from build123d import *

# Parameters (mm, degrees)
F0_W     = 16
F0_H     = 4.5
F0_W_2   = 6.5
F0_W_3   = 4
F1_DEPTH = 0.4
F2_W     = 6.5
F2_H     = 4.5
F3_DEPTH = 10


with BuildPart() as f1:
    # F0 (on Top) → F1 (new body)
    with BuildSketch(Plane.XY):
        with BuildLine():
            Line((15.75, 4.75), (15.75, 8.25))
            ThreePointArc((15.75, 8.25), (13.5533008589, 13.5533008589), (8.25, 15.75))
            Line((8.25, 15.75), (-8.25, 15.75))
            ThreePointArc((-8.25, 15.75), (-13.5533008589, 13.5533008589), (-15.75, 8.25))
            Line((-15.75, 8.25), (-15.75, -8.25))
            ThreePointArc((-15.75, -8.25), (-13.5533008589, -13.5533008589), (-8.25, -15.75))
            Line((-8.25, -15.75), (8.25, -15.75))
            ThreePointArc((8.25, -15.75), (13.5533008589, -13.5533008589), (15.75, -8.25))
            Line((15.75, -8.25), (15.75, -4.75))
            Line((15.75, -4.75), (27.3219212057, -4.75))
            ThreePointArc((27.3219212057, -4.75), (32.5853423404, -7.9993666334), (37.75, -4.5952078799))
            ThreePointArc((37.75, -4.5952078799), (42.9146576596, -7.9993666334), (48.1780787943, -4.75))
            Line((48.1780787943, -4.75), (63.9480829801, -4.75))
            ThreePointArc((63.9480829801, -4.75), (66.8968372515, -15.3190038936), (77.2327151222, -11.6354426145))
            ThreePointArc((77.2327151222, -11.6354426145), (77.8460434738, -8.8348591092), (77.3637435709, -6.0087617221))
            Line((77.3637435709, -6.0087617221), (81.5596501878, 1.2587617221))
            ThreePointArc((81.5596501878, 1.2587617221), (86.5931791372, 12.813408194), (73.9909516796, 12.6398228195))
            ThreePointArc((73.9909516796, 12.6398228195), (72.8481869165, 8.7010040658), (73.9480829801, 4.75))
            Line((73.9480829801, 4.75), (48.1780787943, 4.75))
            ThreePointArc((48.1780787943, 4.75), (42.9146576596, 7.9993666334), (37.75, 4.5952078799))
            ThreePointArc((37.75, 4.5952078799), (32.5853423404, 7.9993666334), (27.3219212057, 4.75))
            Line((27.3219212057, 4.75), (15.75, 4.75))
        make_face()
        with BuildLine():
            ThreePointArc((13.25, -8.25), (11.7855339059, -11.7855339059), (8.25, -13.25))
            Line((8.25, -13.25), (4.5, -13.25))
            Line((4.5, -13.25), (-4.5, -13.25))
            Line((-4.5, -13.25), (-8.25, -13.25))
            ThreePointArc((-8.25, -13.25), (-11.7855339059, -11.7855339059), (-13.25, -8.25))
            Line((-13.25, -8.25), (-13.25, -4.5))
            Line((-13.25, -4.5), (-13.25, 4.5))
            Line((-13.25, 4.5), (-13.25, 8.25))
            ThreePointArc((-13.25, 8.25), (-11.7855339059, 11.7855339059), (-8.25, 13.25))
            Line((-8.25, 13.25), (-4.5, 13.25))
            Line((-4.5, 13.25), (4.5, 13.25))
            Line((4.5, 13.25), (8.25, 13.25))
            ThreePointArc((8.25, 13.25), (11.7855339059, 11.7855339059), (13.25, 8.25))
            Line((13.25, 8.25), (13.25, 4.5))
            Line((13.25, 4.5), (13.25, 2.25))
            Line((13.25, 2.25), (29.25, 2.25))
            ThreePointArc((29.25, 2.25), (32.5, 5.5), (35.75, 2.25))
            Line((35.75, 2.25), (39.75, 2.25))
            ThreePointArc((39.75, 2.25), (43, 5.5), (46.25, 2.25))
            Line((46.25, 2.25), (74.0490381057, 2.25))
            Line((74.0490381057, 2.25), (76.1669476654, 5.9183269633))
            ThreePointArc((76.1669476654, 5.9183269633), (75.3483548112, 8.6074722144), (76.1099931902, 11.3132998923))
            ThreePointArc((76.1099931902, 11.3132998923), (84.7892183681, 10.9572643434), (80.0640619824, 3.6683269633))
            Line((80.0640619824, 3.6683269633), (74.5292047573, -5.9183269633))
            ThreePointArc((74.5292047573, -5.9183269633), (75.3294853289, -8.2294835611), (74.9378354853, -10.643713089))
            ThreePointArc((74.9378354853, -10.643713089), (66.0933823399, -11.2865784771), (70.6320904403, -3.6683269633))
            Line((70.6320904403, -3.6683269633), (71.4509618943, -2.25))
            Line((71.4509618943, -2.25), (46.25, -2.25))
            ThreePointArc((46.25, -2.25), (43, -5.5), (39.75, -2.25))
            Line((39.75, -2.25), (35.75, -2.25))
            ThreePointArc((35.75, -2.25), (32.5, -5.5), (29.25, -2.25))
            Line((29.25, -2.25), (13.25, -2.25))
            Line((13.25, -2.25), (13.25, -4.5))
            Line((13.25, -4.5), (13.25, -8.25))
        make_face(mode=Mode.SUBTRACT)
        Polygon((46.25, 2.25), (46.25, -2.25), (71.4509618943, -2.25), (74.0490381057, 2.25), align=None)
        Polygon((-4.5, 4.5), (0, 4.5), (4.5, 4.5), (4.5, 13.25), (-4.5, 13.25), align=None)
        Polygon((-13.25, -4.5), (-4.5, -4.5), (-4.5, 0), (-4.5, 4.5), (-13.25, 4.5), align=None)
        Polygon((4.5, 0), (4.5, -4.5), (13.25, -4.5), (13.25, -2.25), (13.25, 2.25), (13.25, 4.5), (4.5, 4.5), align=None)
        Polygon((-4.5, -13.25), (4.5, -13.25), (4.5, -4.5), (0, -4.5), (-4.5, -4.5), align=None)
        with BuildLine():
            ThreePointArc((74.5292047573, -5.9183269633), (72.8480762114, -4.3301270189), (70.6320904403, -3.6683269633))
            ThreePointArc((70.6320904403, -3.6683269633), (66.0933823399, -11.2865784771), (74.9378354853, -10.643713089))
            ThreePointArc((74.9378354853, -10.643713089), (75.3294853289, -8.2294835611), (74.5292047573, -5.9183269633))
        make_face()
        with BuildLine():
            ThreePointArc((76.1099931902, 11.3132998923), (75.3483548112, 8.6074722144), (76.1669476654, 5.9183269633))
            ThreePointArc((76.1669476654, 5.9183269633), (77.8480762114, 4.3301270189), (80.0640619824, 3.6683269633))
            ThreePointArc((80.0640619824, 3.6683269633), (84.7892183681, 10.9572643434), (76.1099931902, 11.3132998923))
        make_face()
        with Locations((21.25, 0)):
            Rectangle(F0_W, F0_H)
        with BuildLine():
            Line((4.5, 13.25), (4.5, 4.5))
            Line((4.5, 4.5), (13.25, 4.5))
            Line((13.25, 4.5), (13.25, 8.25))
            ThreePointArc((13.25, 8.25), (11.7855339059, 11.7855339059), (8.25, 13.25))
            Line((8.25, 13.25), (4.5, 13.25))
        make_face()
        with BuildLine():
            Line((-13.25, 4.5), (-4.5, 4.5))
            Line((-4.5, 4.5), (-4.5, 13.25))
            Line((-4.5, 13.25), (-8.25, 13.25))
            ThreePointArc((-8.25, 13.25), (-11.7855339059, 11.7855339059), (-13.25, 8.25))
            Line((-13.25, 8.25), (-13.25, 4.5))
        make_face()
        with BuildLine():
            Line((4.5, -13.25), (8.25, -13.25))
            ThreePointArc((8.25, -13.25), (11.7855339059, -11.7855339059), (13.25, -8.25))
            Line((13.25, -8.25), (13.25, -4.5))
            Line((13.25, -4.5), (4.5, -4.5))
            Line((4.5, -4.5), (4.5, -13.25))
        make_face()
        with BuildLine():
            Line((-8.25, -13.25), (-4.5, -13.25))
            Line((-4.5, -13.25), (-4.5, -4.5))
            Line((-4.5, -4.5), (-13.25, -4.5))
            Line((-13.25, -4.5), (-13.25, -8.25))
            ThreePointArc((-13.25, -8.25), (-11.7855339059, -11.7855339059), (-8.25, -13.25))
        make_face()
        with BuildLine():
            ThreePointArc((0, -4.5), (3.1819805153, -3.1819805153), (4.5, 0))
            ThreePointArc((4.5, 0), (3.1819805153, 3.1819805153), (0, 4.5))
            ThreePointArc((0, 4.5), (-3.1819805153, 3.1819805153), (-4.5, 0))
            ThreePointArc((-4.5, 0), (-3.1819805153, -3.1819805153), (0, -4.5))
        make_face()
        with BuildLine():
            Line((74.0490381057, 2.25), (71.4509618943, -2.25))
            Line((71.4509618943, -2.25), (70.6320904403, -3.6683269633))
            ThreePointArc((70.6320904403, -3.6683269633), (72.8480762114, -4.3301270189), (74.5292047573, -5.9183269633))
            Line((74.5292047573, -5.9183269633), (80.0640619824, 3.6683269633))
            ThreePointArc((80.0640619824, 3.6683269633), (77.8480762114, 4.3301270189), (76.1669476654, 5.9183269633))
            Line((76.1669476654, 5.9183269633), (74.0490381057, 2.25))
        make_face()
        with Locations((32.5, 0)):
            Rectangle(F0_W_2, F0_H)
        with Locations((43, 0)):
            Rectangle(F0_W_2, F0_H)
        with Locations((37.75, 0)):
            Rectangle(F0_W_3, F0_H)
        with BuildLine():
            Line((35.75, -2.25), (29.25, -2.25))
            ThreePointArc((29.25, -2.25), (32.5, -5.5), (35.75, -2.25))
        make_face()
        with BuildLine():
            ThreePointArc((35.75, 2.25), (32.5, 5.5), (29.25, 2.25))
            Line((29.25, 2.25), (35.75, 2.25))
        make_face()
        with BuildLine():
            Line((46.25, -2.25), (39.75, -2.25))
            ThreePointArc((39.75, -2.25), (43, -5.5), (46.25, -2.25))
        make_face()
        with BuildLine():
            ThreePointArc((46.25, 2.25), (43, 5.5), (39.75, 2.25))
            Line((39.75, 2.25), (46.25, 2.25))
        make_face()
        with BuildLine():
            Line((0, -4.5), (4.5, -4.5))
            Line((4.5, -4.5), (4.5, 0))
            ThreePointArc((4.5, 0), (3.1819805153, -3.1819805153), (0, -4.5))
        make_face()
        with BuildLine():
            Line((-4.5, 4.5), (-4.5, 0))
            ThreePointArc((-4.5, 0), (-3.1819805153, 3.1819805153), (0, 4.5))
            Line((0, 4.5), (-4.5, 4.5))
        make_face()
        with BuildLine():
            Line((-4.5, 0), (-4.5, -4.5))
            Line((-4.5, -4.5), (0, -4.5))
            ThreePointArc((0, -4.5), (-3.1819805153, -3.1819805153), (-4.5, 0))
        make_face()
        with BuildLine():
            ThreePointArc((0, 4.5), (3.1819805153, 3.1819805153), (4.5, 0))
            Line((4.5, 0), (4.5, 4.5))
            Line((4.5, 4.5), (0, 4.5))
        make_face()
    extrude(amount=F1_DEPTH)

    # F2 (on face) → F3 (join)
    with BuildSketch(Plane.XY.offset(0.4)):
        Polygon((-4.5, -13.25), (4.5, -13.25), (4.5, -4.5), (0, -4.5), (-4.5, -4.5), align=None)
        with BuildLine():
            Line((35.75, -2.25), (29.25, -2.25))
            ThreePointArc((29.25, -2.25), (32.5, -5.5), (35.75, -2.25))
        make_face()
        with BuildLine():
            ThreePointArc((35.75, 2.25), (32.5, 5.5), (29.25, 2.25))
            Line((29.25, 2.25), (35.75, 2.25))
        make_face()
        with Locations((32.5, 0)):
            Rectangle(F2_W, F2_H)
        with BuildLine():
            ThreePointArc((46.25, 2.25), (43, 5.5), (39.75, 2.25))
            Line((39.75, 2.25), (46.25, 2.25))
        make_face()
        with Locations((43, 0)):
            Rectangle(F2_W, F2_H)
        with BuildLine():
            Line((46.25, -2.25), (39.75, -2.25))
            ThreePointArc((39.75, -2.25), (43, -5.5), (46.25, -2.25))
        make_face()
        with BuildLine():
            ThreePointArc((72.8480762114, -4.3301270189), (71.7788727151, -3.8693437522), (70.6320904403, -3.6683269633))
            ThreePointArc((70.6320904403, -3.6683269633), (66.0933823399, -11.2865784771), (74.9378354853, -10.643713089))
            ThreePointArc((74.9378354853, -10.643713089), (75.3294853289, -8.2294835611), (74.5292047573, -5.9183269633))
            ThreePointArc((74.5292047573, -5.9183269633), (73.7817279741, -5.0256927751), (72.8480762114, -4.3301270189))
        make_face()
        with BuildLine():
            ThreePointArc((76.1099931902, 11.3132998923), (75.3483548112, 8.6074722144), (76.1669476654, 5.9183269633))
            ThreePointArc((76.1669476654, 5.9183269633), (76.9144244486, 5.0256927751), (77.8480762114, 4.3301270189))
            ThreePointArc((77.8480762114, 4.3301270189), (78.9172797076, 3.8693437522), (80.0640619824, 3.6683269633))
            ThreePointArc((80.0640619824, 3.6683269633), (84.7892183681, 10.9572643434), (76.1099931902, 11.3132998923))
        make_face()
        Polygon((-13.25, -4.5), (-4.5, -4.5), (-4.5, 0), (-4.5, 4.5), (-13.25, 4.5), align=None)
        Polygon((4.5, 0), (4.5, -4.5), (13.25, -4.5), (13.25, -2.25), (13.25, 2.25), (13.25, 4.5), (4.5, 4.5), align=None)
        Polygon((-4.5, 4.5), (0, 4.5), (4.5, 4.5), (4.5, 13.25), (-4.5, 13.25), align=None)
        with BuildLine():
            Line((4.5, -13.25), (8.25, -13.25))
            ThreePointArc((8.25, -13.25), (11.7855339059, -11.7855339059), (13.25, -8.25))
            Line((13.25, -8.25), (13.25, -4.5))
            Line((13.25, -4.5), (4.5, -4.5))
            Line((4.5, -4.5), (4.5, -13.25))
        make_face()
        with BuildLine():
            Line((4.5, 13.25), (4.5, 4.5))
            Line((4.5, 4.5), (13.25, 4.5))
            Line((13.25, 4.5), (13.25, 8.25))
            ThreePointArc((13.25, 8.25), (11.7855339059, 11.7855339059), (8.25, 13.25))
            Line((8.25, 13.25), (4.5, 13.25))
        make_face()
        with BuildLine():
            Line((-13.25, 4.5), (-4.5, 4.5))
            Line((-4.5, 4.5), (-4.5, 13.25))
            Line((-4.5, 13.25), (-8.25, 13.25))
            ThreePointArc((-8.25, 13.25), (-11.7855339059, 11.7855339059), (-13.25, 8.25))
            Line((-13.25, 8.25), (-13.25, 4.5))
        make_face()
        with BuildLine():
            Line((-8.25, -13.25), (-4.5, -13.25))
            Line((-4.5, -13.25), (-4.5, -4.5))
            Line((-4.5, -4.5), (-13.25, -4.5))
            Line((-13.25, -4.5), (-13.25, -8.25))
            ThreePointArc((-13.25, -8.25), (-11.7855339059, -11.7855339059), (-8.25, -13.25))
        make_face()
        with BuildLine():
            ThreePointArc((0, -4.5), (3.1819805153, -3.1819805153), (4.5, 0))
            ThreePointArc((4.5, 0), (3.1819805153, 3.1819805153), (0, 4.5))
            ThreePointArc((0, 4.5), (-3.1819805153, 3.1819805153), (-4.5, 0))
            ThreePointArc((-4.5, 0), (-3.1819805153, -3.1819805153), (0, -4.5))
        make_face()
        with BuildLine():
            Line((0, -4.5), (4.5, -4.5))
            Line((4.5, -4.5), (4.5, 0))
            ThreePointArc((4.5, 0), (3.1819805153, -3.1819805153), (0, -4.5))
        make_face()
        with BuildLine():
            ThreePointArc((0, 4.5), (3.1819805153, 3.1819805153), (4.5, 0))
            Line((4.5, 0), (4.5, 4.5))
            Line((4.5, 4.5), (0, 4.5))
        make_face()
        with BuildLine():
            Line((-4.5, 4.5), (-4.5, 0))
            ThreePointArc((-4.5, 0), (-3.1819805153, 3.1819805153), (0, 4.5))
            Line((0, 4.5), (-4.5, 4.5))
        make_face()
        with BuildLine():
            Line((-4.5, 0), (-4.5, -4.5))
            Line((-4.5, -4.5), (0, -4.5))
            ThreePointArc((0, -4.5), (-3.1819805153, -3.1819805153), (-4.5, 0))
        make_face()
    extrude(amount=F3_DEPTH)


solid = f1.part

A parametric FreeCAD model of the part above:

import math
import FreeCAD as App
import Part
import Sketcher
from FreeCAD import Vector
Q = App.Units.Quantity

doc = App.newDocument("Part")
body = doc.addObject("PartDesign::Body", "Body")

sketch1 = body.newObject("Sketcher::SketchObject", "Sketch")
sketch1.AttachmentSupport = (doc.getObject("XY_Plane"), [""])
sketch1.MapMode = "FlatFace"
sketch1.addGeometry([
    Part.LineSegment(Vector(15.8, 4.8, 0), Vector(15.8, 8.2, 0)),
    Part.ArcOfCircle(Part.Circle(Vector(8.2, 8.2, 0), Vector(0, 0, 1), 7.5), math.radians(0), math.radians(90)),
    Part.LineSegment(Vector(8.2, 15.8, 0), Vector(-8.2, 15.8, 0)),
    Part.ArcOfCircle(Part.Circle(Vector(-8.2, 8.2, 0), Vector(0, 0, 1), 7.5), math.radians(90), math.radians(180)),
    Part.LineSegment(Vector(-15.8, 8.2, 0), Vector(-15.8, -8.2, 0)),
    Part.ArcOfCircle(Part.Circle(Vector(-8.2, -8.2, 0), Vector(0, 0, 1), 7.5), math.radians(180), math.radians(270)),
    Part.LineSegment(Vector(-8.2, -15.8, 0), Vector(8.2, -15.8, 0)),
    Part.ArcOfCircle(Part.Circle(Vector(8.2, -8.2, 0), Vector(0, 0, 1), 7.5), math.radians(-90), math.radians(0)),
    Part.LineSegment(Vector(15.8, -8.2, 0), Vector(15.8, -4.8, 0)),
    Part.LineSegment(Vector(15.8, -4.8, 0), Vector(27.3, -4.8, 0)),
    Part.ArcOfCircle(Part.Circle(Vector(32.5, -2.2, 0), Vector(0, 0, 1), 5.8), math.radians(-154), math.radians(-24)),
    Part.ArcOfCircle(Part.Circle(Vector(43, -2.2, 0), Vector(0, 0, 1), 5.8), math.radians(-156), math.radians(-26)),
    Part.LineSegment(Vector(48.2, -4.8, 0), Vector(63.9, -4.8, 0)),
    Part.ArcOfCircle(Part.Circle(Vector(70.3, -8.7, 0), Vector(0, 0, 1), 7.5), math.radians(149), math.radians(337)),
    Part.ArcOfCircle(Part.Circle(Vector(70.3, -8.7, 0), Vector(0, 0, 1), 7.5), math.radians(-23), math.radians(21)),
    Part.LineSegment(Vector(77.4, -6, 0), Vector(81.6, 1.3, 0)),
    Part.ArcOfCircle(Part.Circle(Vector(80.3, 8.7, 0), Vector(0, 0, 1), 7.5), math.radians(-81), math.radians(148)),
    Part.ArcOfCircle(Part.Circle(Vector(80.3, 8.7, 0), Vector(0, 0, 1), 7.5), math.radians(148), math.radians(211)),
    Part.LineSegment(Vector(73.9, 4.8, 0), Vector(48.2, 4.8, 0)),
    Part.ArcOfCircle(Part.Circle(Vector(43, 2.2, 0), Vector(0, 0, 1), 5.8), math.radians(26), math.radians(156)),
    Part.ArcOfCircle(Part.Circle(Vector(32.5, 2.2, 0), Vector(0, 0, 1), 5.8), math.radians(24), math.radians(154)),
    Part.LineSegment(Vector(27.3, 4.8, 0), Vector(15.8, 4.8, 0)),
], False)
sketch1.addConstraint([
    Sketcher.Constraint("Tangent", 0, 2, 1, 1),
    Sketcher.Constraint("Tangent", 1, 2, 2, 1),
    Sketcher.Constraint("Tangent", 2, 2, 3, 1),
    Sketcher.Constraint("Tangent", 3, 2, 4, 1),
    Sketcher.Constraint("Tangent", 4, 2, 5, 1),
    Sketcher.Constraint("Tangent", 5, 2, 6, 1),
    Sketcher.Constraint("Tangent", 6, 2, 7, 1),
    Sketcher.Constraint("Tangent", 7, 2, 8, 1),
    Sketcher.Constraint("Coincident", 8, 2, 9, 1),
    Sketcher.Constraint("Coincident", 9, 2, 10, 1),
    Sketcher.Constraint("Coincident", 10, 2, 11, 1),
    Sketcher.Constraint("Coincident", 11, 2, 12, 1),
    Sketcher.Constraint("Coincident", 12, 2, 13, 1),
    Sketcher.Constraint("Tangent", 13, 2, 14, 1),
    Sketcher.Constraint("Coincident", 14, 2, 15, 1),
    Sketcher.Constraint("Coincident", 15, 2, 16, 1),
    Sketcher.Constraint("Tangent", 16, 2, 17, 1),
    Sketcher.Constraint("Coincident", 17, 2, 18, 1),
    Sketcher.Constraint("Coincident", 18, 2, 19, 1),
    Sketcher.Constraint("Coincident", 19, 2, 20, 1),
    Sketcher.Constraint("Coincident", 20, 2, 21, 1),
    Sketcher.Constraint("Coincident", 21, 2, 0, 1),
    Sketcher.Constraint("Vertical", 0),
    Sketcher.Constraint("Horizontal", 2),
    Sketcher.Constraint("Vertical", 4),
    Sketcher.Constraint("Horizontal", 6),
    Sketcher.Constraint("Vertical", 8),
    Sketcher.Constraint("Horizontal", 9),
    Sketcher.Constraint("Horizontal", 12),
    Sketcher.Constraint("Horizontal", 18),
    Sketcher.Constraint("Horizontal", 21),
    Sketcher.Constraint("Equal", 1, 3),
    Sketcher.Constraint("Equal", 3, 5),
    Sketcher.Constraint("Equal", 5, 7),
    Sketcher.Constraint("Equal", 10, 11),
    Sketcher.Constraint("Equal", 7, 13),
    Sketcher.Constraint("Equal", 13, 14),
    Sketcher.Constraint("Equal", 14, 16),
    Sketcher.Constraint("Equal", 16, 17),
    Sketcher.Constraint("Equal", 11, 19),
    Sketcher.Constraint("Equal", 19, 20),
    Sketcher.Constraint("Symmetric", 1, 3, 5, 3, -1, 1),
    Sketcher.Constraint("Symmetric", 11, 3, 19, 3, -1),
    Sketcher.Constraint("Symmetric", 10, 3, 20, 3, -1),
    Sketcher.Constraint("Symmetric", 8, 2, 21, 2, -1),
    Sketcher.Constraint("Horizontal", 10, 3, 11, 3),
    Sketcher.Constraint("Horizontal", 9, 2, 11, 2),
    Sketcher.Constraint("Horizontal", 18, 2, 20, 2),
    Sketcher.Constraint("Equal", 6, 4),
    Sketcher.Constraint("Radius", 1, 7.5),
    Sketcher.Constraint("Angle", 15, Q("60 deg")),
    Sketcher.Constraint("Radius", 10, 5.75),
    Sketcher.Constraint("DistanceX", 2, 2, 2, 1, 16.5),
    Sketcher.Constraint("DistanceY", 0, 1, 0, 2, 3.5),
    Sketcher.Constraint("DistanceX", -1, 1, 11, 3, 43.0),
    Sketcher.Constraint("DistanceY", 7, 3, 10, 3, 6.0),
    Sketcher.Constraint("DistanceX", 13, 3, 16, 3, 10.0),
    Sketcher.Constraint("DistanceX", -1, 1, 10, 3, 32.5),
    Sketcher.Constraint("DistanceX", 16, 2, 15, 2, 7.568699),
    Sketcher.Constraint("DistanceX", 12, 1, 12, 2, 15.770004),
    Sketcher.Constraint("DistanceX", 18, 2, 18, 1, 25.770004),
    Sketcher.Constraint("DistanceY", 14, 2, -1, 1, 6.008762),
    Sketcher.Constraint("DistanceX", -1, 1, 15, 2, 81.55965),
    Sketcher.Constraint("DistanceX", 13, 3, 13, 2, 6.884639),
])
pad1 = body.newObject("PartDesign::Pad", "Pad")
pad1.Profile = sketch1
pad1.Length = 0.4

sketch2 = body.newObject("Sketcher::SketchObject", "Sketch001")
sketch2.AttachmentSupport = (doc.getObject("XY_Plane"), [""])
sketch2.MapMode = "FlatFace"
sketch2.AttachmentOffset = App.Placement(Vector(0, 0, 0.4), App.Rotation())
sketch2.addGeometry([
    Part.LineSegment(Vector(-13.2, 8.2, 0), Vector(-13.2, -8.2, 0)),
    Part.ArcOfCircle(Part.Circle(Vector(-8.2, -8.2, 0), Vector(0, 0, 1), 5), math.radians(180), math.radians(270)),
    Part.LineSegment(Vector(-8.2, -13.2, 0), Vector(8.2, -13.2, 0)),
    Part.ArcOfCircle(Part.Circle(Vector(8.2, -8.2, 0), Vector(0, 0, 1), 5), math.radians(-90), math.radians(0)),
    Part.LineSegment(Vector(13.2, -8.2, 0), Vector(13.2, 8.2, 0)),
    Part.ArcOfCircle(Part.Circle(Vector(8.2, 8.2, 0), Vector(0, 0, 1), 5), math.radians(0), math.radians(90)),
    Part.LineSegment(Vector(8.2, 13.2, 0), Vector(-8.2, 13.2, 0)),
    Part.ArcOfCircle(Part.Circle(Vector(-8.2, 8.2, 0), Vector(0, 0, 1), 5), math.radians(90), math.radians(180)),
    Part.ArcOfCircle(Part.Circle(Vector(32.5, -2.2, 0), Vector(0, 0, 1), 3.2), math.radians(180), math.radians(360)),
    Part.LineSegment(Vector(35.8, -2.2, 0), Vector(35.8, 2.2, 0)),
    Part.ArcOfCircle(Part.Circle(Vector(32.5, 2.2, 0), Vector(0, 0, 1), 3.2), math.radians(0), math.radians(180)),
    Part.LineSegment(Vector(29.2, 2.2, 0), Vector(29.2, -2.2, 0)),
    Part.ArcOfCircle(Part.Circle(Vector(43, 2.2, 0), Vector(0, 0, 1), 3.2), math.radians(0), math.radians(180)),
    Part.LineSegment(Vector(39.8, 2.2, 0), Vector(39.8, -2.2, 0)),
    Part.ArcOfCircle(Part.Circle(Vector(43, -2.2, 0), Vector(0, 0, 1), 3.2), math.radians(180), math.radians(360)),
    Part.LineSegment(Vector(46.2, -2.2, 0), Vector(46.2, 2.2, 0)),
    Part.ArcOfCircle(Part.Circle(Vector(70.3, -8.7, 0), Vector(0, 0, 1), 5), math.radians(60), math.radians(87)),
    Part.ArcOfCircle(Part.Circle(Vector(70.3, -8.7, 0), Vector(0, 0, 1), 5), math.radians(87), math.radians(337)),
    Part.ArcOfCircle(Part.Circle(Vector(70.3, -8.7, 0), Vector(0, 0, 1), 5), math.radians(-23), math.radians(33)),
    Part.ArcOfCircle(Part.Circle(Vector(70.3, -8.7, 0), Vector(0, 0, 1), 5), math.radians(33), math.radians(60)),
    Part.ArcOfCircle(Part.Circle(Vector(80.3, 8.7, 0), Vector(0, 0, 1), 5), math.radians(148), math.radians(213)),
    Part.ArcOfCircle(Part.Circle(Vector(80.3, 8.7, 0), Vector(0, 0, 1), 5), math.radians(-147), math.radians(-120)),
    Part.ArcOfCircle(Part.Circle(Vector(80.3, 8.7, 0), Vector(0, 0, 1), 5), math.radians(-120), math.radians(-93)),
    Part.ArcOfCircle(Part.Circle(Vector(80.3, 8.7, 0), Vector(0, 0, 1), 5), math.radians(-93), math.radians(148)),
], False)
sketch2.addConstraint([
    Sketcher.Constraint("Tangent", 0, 2, 1, 1),
    Sketcher.Constraint("Tangent", 1, 2, 2, 1),
    Sketcher.Constraint("Tangent", 2, 2, 3, 1),
    Sketcher.Constraint("Tangent", 3, 2, 4, 1),
    Sketcher.Constraint("Tangent", 4, 2, 5, 1),
    Sketcher.Constraint("Tangent", 5, 2, 6, 1),
    Sketcher.Constraint("Tangent", 6, 2, 7, 1),
    Sketcher.Constraint("Tangent", 7, 2, 0, 1),
    Sketcher.Constraint("Tangent", 8, 2, 9, 1),
    Sketcher.Constraint("Tangent", 9, 2, 10, 1),
    Sketcher.Constraint("Tangent", 10, 2, 11, 1),
    Sketcher.Constraint("Tangent", 11, 2, 8, 1),
    Sketcher.Constraint("Tangent", 12, 2, 13, 1),
    Sketcher.Constraint("Tangent", 13, 2, 14, 1),
    Sketcher.Constraint("Tangent", 14, 2, 15, 1),
    Sketcher.Constraint("Tangent", 15, 2, 12, 1),
    Sketcher.Constraint("Tangent", 16, 2, 17, 1),
    Sketcher.Constraint("Tangent", 17, 2, 18, 1),
    Sketcher.Constraint("Tangent", 18, 2, 19, 1),
    Sketcher.Constraint("Tangent", 19, 2, 16, 1),
    Sketcher.Constraint("Tangent", 20, 2, 21, 1),
    Sketcher.Constraint("Tangent", 21, 2, 22, 1),
    Sketcher.Constraint("Tangent", 22, 2, 23, 1),
    Sketcher.Constraint("Tangent", 23, 2, 20, 1),
    Sketcher.Constraint("Vertical", 0),
    Sketcher.Constraint("Horizontal", 2),
    Sketcher.Constraint("Vertical", 4),
    Sketcher.Constraint("Horizontal", 6),
    Sketcher.Constraint("Vertical", 9),
    Sketcher.Constraint("Vertical", 11),
    Sketcher.Constraint("Vertical", 13),
    Sketcher.Constraint("Vertical", 15),
    Sketcher.Constraint("Equal", 1, 3),
    Sketcher.Constraint("Equal", 3, 5),
    Sketcher.Constraint("Equal", 5, 7),
    Sketcher.Constraint("Equal", 10, 12),
    Sketcher.Constraint("Equal", 7, 16),
    Sketcher.Constraint("Equal", 16, 17),
    Sketcher.Constraint("Equal", 19, 20),
    Sketcher.Constraint("Equal", 20, 21),
    Sketcher.Constraint("Symmetric", 1, 3, 5, 3, -1, 1),
    Sketcher.Constraint("Horizontal", 10, 3, 12, 3),
    Sketcher.Constraint("Horizontal", 8, 3, 14, 3),
    Sketcher.Constraint("Equal", 6, 0),
    Sketcher.Constraint("Radius", 1, 5.0),
    Sketcher.Constraint("Radius", 8, 3.25),
    Sketcher.Constraint("DistanceX", 2, 1, 2, 2, 16.5),
    Sketcher.Constraint("DistanceY", 9, 1, 9, 2, 4.5),
    Sketcher.Constraint("DistanceX", -1, 1, 12, 3, 43.0),
    Sketcher.Constraint("DistanceY", 3, 3, 8, 3, 6.0),
    Sketcher.Constraint("DistanceX", 19, 3, 20, 3, 10.0),
    Sketcher.Constraint("DistanceX", 9, 2, 12, 2, 4.0),
    Sketcher.Constraint("DistanceX", 19, 3, 19, 2, 2.5),
    Sketcher.Constraint("DistanceX", 21, 2, 21, 3, 2.5),
    Sketcher.Constraint("DistanceY", 18, 2, 16, 2, 2.25),
    Sketcher.Constraint("DistanceY", 22, 2, 20, 2, 2.25),
    Sketcher.Constraint("DistanceY", -1, 1, 23, 2, 11.3133),
    Sketcher.Constraint("DistanceY", 18, 2, 19, 2, 1.5882),
    Sketcher.Constraint("DistanceY", 21, 2, 20, 2, 1.5882),
    Sketcher.Constraint("DistanceX", -1, 1, 16, 2, 70.63209),
    Sketcher.Constraint("DistanceY", 19, 3, 20, 3, 17.320508),
    Sketcher.Constraint("DistanceX", 16, 3, 17, 2, 4.589759),
    Sketcher.Constraint("DistanceY", 16, 3, -1, 1, 8.660254),
])
pad2 = body.newObject("PartDesign::Pad", "Pad001")
pad2.Profile = sketch2
pad2.Length = 10

doc.recompute()
